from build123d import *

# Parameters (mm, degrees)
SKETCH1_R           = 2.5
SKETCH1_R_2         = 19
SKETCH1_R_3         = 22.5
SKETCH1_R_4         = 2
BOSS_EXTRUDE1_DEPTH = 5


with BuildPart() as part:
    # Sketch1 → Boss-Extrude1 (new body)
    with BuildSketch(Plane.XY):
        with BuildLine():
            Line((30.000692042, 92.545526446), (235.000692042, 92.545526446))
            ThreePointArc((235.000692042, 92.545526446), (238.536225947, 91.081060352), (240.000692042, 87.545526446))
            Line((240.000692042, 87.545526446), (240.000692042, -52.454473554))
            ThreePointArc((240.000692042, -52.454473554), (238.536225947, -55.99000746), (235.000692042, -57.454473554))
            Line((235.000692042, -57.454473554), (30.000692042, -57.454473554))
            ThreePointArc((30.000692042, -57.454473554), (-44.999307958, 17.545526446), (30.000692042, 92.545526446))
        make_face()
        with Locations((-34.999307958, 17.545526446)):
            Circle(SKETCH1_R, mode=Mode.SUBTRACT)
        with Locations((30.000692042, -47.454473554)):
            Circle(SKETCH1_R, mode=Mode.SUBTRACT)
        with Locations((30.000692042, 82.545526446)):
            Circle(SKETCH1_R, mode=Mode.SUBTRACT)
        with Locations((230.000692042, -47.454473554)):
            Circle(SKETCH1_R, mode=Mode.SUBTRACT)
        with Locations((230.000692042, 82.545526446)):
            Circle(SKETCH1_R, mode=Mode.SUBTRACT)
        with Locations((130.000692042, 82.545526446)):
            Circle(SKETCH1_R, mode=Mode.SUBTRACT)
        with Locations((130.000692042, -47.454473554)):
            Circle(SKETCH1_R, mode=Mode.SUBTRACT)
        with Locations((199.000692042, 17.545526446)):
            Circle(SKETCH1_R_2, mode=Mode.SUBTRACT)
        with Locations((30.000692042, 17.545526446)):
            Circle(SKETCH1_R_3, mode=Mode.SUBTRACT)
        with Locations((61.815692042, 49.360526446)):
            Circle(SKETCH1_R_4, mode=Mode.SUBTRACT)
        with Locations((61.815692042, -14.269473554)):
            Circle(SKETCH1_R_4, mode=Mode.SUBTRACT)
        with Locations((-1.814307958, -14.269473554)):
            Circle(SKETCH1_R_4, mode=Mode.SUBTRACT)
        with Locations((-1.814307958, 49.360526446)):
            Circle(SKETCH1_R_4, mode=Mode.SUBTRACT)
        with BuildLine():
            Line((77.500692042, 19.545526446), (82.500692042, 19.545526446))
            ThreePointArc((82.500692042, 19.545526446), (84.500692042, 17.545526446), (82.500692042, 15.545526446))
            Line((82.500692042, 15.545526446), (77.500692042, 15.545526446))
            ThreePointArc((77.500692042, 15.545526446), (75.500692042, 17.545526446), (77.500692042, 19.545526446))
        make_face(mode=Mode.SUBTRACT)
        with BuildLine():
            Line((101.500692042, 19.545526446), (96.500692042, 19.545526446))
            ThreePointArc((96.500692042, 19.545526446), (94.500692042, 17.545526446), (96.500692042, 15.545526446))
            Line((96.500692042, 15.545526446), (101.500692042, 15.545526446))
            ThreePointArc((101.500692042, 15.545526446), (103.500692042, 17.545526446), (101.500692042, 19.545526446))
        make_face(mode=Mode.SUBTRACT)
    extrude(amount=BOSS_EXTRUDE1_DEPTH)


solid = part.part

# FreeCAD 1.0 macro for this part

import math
import FreeCAD as App
import Part
import Sketcher
from FreeCAD import Vector
Q = App.Units.Quantity

doc = App.newDocument("Part")
body = doc.addObject("PartDesign::Body", "Body")

# Sketch on XY plane
sketch1 = body.newObject("Sketcher::SketchObject", "Sketch")
sketch1.AttachmentSupport = (doc.getObject("XY_Plane"), [""])
sketch1.MapMode = "FlatFace"
sketch1.addGeometry([
    Part.LineSegment(Vector(235, 92.5, 0), Vector(30, 92.5, 0)),  # 0
    Part.ArcOfCircle(Part.Circle(Vector(30, 17.5, 0), Vector(0, 0, 1), 75), math.radians(90), math.radians(270)),  # 1
    Part.LineSegment(Vector(30, -57.5, 0), Vector(235, -57.5, 0)),  # 2
    Part.ArcOfCircle(Part.Circle(Vector(235, -52.5, 0), Vector(0, 0, 1), 5), math.radians(-90), math.radians(0)),  # 3
    Part.LineSegment(Vector(240, -52.5, 0), Vector(240, 87.5, 0)),  # 4
    Part.ArcOfCircle(Part.Circle(Vector(235, 87.5, 0), Vector(0, 0, 1), 5), math.radians(0), math.radians(90)),  # 5
    Part.Circle(Vector(230, -47.5, 0), Vector(0, 0, 1), 2.5),  # 6
    Part.Circle(Vector(130, -47.5, 0), Vector(0, 0, 1), 2.5),  # 7
    Part.Circle(Vector(30, -47.5, 0), Vector(0, 0, 1), 2.5),  # 8
    Part.Circle(Vector(61.8, -14.3, 0), Vector(0, 0, 1), 2),  # 9
    Part.Circle(Vector(-1.8, -14.3, 0), Vector(0, 0, 1), 2),  # 10
    Part.Circle(Vector(199, 17.5, 0), Vector(0, 0, 1), 19),  # 11
    Part.ArcOfCircle(Part.Circle(Vector(101.5, 17.5, 0), Vector(0, 0, 1), 2), math.radians(-90), math.radians(90)),  # 12
    Part.LineSegment(Vector(101.5, 15.5, 0), Vector(96.5, 15.5, 0)),  # 13
    Part.ArcOfCircle(Part.Circle(Vector(96.5, 17.5, 0), Vector(0, 0, 1), 2), math.radians(90), math.radians(270)),  # 14
    Part.LineSegment(Vector(96.5, 19.5, 0), Vector(101.5, 19.5, 0)),  # 15
    Part.Circle(Vector(230, 82.5, 0), Vector(0, 0, 1), 2.5),  # 16
    Part.Circle(Vector(130, 82.5, 0), Vector(0, 0, 1), 2.5),  # 17
    Part.LineSegment(Vector(77.5, 19.5, 0), Vector(82.5, 19.5, 0)),  # 18
    Part.ArcOfCircle(Part.Circle(Vector(82.5, 17.5, 0), Vector(0, 0, 1), 2), math.radians(-90), math.radians(90)),  # 19
    Part.LineSegment(Vector(82.5, 15.5, 0), Vector(77.5, 15.5, 0)),  # 20
    Part.ArcOfCircle(Part.Circle(Vector(77.5, 17.5, 0), Vector(0, 0, 1), 2), math.radians(90), math.radians(270)),  # 21
    Part.Circle(Vector(61.8, 49.4, 0), Vector(0, 0, 1), 2),  # 22
    Part.Circle(Vector(30, 17.5, 0), Vector(0, 0, 1), 22.5),  # 23
    Part.Circle(Vector(-35, 17.5, 0), Vector(0, 0, 1), 2.5),  # 24
    Part.Circle(Vector(-1.8, 49.4, 0), Vector(0, 0, 1), 2),  # 25
    Part.Circle(Vector(30, 82.5, 0), Vector(0, 0, 1), 2.5),  # 26
], False)
sketch1.addConstraint([
    Sketcher.Constraint("Tangent", 0, 2, 1, 1),
    Sketcher.Constraint("Tangent", 1, 2, 2, 1),
    Sketcher.Constraint("Tangent", 2, 2, 3, 1),
    Sketcher.Constraint("Tangent", 3, 2, 4, 1),
    Sketcher.Constraint("Tangent", 4, 2, 5, 1),
    Sketcher.Constraint("Tangent", 5, 2, 0, 1),
    Sketcher.Constraint("Tangent", 12, 1, 13, 1),
    Sketcher.Constraint("Tangent", 13, 2, 14, 2),
    Sketcher.Constraint("Tangent", 14, 1, 15, 1),
    Sketcher.Constraint("Tangent", 15, 2, 12, 2),
    Sketcher.Constraint("Tangent", 18, 2, 19, 2),
    Sketcher.Constraint("Tangent", 19, 1, 20, 1),
    Sketcher.Constraint("Tangent", 20, 2, 21, 2),
    Sketcher.Constraint("Tangent", 21, 1, 18, 1),
    Sketcher.Constraint("Horizontal", 0),
    Sketcher.Constraint("Horizontal", 2),
    Sketcher.Constraint("Vertical", 4),
    Sketcher.Constraint("Horizontal", 13),
    Sketcher.Constraint("Horizontal", 15),
    Sketcher.Constraint("Horizontal", 18),
    Sketcher.Constraint("Horizontal", 20),
    Sketcher.Constraint("Coincident", 23, 3, 1, 3),
    Sketcher.Constraint("Equal", 3, 5),
    Sketcher.Constraint("Equal", 6, 7),
    Sketcher.Constraint("Equal", 7, 8),
    Sketcher.Constraint("Equal", 9, 10),
    Sketcher.Constraint("Equal", 10, 12),
    Sketcher.Constraint("Equal", 8, 16),
    Sketcher.Constraint("Equal", 16, 17),
    Sketcher.Constraint("Equal", 14, 19),
    Sketcher.Constraint("Equal", 21, 22),
    Sketcher.Constraint("Equal", 17, 24),
    Sketcher.Constraint("Equal", 22, 25),
    Sketcher.Constraint("Equal", 24, 26),
    Sketcher.Constraint("Horizontal", 6, 3, 7, 3),
    Sketcher.Constraint("Horizontal", 7, 3, 8, 3),
    Sketcher.Constraint("Horizontal", 9, 3, 10, 3),
    Sketcher.Constraint("Horizontal", 1, 3, 11, 3),
    Sketcher.Constraint("Horizontal", 11, 3, 12, 3),
    Sketcher.Constraint("Horizontal", 16, 3, 17, 3),
    Sketcher.Constraint("Horizontal", 14, 3, 19, 3),
    Sketcher.Constraint("Horizontal", 23, 3, 24, 3),
    Sketcher.Constraint("Horizontal", 22, 3, 25, 3),
    Sketcher.Constraint("Horizontal", 17, 3, 26, 3),
    Sketcher.Constraint("Vertical", 1, 3, 8, 3),
    Sketcher.Constraint("Vertical", 6, 3, 16, 3),
    Sketcher.Constraint("Vertical", 7, 3, 17, 3),
    Sketcher.Constraint("Vertical", 9, 3, 22, 3),
    Sketcher.Constraint("Vertical", 10, 3, 25, 3),
    Sketcher.Constraint("Vertical", 23, 3, 26, 3),
    Sketcher.Constraint("Equal", 15, 18),
    Sketcher.Constraint("Diameter", 6, Q("5 mm")),
    Sketcher.Constraint("Diameter", 9, Q("4 mm")),
    Sketcher.Constraint("Diameter", 11, Q("38 mm")),
    Sketcher.Constraint("Diameter", 23, Q("45 mm")),
    Sketcher.Constraint("Radius", 1, Q("75 mm")),
    Sketcher.Constraint("Radius", 3, Q("5 mm")),
    Sketcher.Constraint("DistanceX", 0, 2, 0, 1, Q("205 mm")),
    Sketcher.Constraint("DistanceX", 13, 2, 13, 1, Q("5 mm")),
    Sketcher.Constraint("DistanceX", 6, 3, 3, 3, Q("5 mm")),
    Sketcher.Constraint("DistanceY", 3, 3, 6, 3, Q("5 mm")),
    Sketcher.Constraint("DistanceX", 7, 3, 6, 3, Q("100 mm")),
    Sketcher.Constraint("DistanceX", 11, 3, 6, 3, Q("31 mm")),
    Sketcher.Constraint("DistanceY", 16, 3, 5, 3, Q("5 mm")),
    Sketcher.Constraint("DistanceX", 19, 3, 14, 3, Q("14 mm")),
    Sketcher.Constraint("DistanceX", 24, 3, 1, 3, Q("65 mm")),
    Sketcher.Constraint("DistanceX", 12, 3, 7, 3, Q("28.5 mm")),
    Sketcher.Constraint("DistanceX", 10, 3, 9, 3, Q("63.63 mm")),
    Sketcher.Constraint("DistanceY", 10, 3, 25, 3, Q("63.63 mm")),
    Sketcher.Constraint("DistanceX", 1, 3, 9, 3, Q("31.815 mm")),
    Sketcher.Constraint("DistanceY", 9, 3, 1, 3, Q("31.815 mm")),
    Sketcher.Constraint("DistanceX", -1, 1, 1, 3, Q("30.000692 mm")),
    Sketcher.Constraint("DistanceY", -1, 1, 1, 3, Q("17.545526 mm")),
])
pad1 = body.newObject("PartDesign::Pad", "Pad")
pad1.Profile = sketch1
pad1.Length = 5

doc.recompute()
